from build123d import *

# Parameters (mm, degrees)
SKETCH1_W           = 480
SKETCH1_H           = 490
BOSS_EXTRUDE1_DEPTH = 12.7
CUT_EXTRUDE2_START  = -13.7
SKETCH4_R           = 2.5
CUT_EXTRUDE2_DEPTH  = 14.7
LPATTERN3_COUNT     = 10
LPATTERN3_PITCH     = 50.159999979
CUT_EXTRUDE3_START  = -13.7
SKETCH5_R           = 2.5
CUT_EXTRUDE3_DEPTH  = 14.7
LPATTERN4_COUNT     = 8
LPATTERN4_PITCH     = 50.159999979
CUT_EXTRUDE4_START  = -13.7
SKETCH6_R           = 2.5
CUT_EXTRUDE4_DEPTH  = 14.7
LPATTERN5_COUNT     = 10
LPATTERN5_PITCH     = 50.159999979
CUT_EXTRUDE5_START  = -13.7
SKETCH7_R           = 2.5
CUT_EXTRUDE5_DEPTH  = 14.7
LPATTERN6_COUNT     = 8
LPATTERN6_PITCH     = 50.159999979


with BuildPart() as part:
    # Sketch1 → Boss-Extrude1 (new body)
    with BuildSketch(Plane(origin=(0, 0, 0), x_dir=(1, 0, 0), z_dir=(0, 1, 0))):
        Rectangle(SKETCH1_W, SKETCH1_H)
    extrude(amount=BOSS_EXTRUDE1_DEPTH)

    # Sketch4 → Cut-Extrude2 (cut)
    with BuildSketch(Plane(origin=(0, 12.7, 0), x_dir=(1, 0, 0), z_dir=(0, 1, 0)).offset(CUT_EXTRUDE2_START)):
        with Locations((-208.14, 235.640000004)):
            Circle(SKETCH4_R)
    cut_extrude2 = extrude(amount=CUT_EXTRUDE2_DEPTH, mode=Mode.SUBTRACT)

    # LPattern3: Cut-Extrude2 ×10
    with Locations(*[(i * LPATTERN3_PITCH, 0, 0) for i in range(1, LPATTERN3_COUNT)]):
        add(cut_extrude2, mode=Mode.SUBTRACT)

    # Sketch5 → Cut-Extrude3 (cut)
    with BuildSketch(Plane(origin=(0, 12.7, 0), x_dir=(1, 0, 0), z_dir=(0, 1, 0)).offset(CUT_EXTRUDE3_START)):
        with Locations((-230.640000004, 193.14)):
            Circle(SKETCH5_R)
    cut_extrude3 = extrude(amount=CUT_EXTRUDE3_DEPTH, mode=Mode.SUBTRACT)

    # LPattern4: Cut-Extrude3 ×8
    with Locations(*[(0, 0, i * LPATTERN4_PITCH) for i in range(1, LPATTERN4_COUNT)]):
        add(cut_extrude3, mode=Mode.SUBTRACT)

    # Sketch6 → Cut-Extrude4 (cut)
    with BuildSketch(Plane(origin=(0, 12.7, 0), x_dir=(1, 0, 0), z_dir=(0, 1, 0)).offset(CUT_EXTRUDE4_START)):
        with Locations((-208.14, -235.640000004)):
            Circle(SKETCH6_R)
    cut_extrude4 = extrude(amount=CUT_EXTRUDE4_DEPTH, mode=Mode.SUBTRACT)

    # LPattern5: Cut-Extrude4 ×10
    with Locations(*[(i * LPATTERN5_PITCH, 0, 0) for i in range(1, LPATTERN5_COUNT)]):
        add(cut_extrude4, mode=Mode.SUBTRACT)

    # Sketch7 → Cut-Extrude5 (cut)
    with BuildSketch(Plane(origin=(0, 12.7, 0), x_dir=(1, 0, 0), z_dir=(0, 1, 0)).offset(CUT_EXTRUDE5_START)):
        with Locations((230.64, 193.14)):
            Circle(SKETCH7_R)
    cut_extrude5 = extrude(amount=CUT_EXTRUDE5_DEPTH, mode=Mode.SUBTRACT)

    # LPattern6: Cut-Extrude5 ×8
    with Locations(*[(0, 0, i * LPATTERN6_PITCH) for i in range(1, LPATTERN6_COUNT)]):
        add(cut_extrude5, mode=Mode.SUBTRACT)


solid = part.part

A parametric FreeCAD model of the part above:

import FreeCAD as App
import Part
import Sketcher
Q = App.Units.Quantity


def add_polygon(sketch, points):
    """Adds a closed chain of lines whose ends are joined by coincident constraints."""
    first, n = sketch.GeometryCount, len(points)
    for a, b in zip(points, points[1:] + points[:1]):
        sketch.addGeometry(Part.LineSegment(App.Vector(*a, 0), App.Vector(*b, 0)), False)
    for i in range(n):
        sketch.addConstraint(Sketcher.Constraint("Coincident", first + i, 2, first + (i + 1) % n, 1))

doc = App.newDocument("Part")
body = doc.addObject("PartDesign::Body", "Body")

# Sketch on XZ plane
sketch1 = body.newObject("Sketcher::SketchObject", "Sketch")
sketch1.AttachmentSupport = (doc.getObject("XZ_Plane"), [""])
sketch1.MapMode = "FlatFace"
add_polygon(sketch1, [(-240, -245), (-240, 245), (240, 245), (240, -245)])  # lines 0-3
sketch1.addConstraint([
    Sketcher.Constraint("Vertical", 0),
    Sketcher.Constraint("Horizontal", 1),
    Sketcher.Constraint("Vertical", 2),
    Sketcher.Constraint("Horizontal", 3),
    Sketcher.Constraint("Symmetric", 0, 2, 2, 2, -1, 1),
    Sketcher.Constraint("DistanceX", 1, 1, 1, 2, Q("480 mm")),
    Sketcher.Constraint("DistanceY", 0, 1, 0, 2, Q("490 mm")),
])
pad1 = body.newObject("PartDesign::Pad", "Pad")
pad1.Profile = sketch1
pad1.Length = 12.7
pad1.Reversed = True

# Sketch on XZ plane
sketch2 = body.newObject("Sketcher::SketchObject", "Sketch001")
sketch2.AttachmentSupport = (doc.getObject("XZ_Plane"), [""])
sketch2.MapMode = "FlatFace"
sketch2.AttachmentOffset = App.Placement(App.Vector(0, 0, 1), App.Rotation())
sketch2.addGeometry(Part.Circle(App.Vector(-208.1, -235.6, 0), App.Vector(0, 0, 1), 2.5), False)
sketch2.addConstraint([
    Sketcher.Constraint("Diameter", 0, Q("5 mm")),
    Sketcher.Constraint("DistanceX", 0, 3, -1, 1, Q("208.14 mm")),
    Sketcher.Constraint("DistanceY", 0, 3, -1, 1, Q("235.64 mm")),
])
pocket1 = body.newObject("PartDesign::Pocket", "Pocket")
pocket1.Profile = sketch2
pocket1.Length = 14.7
doc.recompute()

linearpattern = body.newObject("PartDesign::LinearPattern", "LinearPattern")
linearpattern.Originals = [pocket1]
linearpattern.Direction = (doc.getObject("X_Axis"), [""])
linearpattern.Mode = "offset"
linearpattern.Offset = 50.16
linearpattern.Occurrences = 10
body.Tip = linearpattern

# Sketch on XZ plane
sketch3 = body.newObject("Sketcher::SketchObject", "Sketch002")
sketch3.AttachmentSupport = (doc.getObject("XZ_Plane"), [""])
sketch3.MapMode = "FlatFace"
sketch3.AttachmentOffset = App.Placement(App.Vector(0, 0, 1), App.Rotation())
sketch3.addGeometry(Part.Circle(App.Vector(-230.6, -193.1, 0), App.Vector(0, 0, 1), 2.5), False)
sketch3.addConstraint([
    Sketcher.Constraint("Diameter", 0, Q("5 mm")),
    Sketcher.Constraint("DistanceX", 0, 3, -1, 1, Q("230.64 mm")),
    Sketcher.Constraint("DistanceY", 0, 3, -1, 1, Q("193.14 mm")),
])
pocket2 = body.newObject("PartDesign::Pocket", "Pocket001")
pocket2.Profile = sketch3
pocket2.Length = 14.7
doc.recompute()

linearpattern2 = body.newObject("PartDesign::LinearPattern", "LinearPattern001")
linearpattern2.Originals = [pocket2]
linearpattern2.Direction = (doc.getObject("Z_Axis"), [""])
linearpattern2.Mode = "offset"
linearpattern2.Offset = 50.16
linearpattern2.Occurrences = 8
body.Tip = linearpattern2

# Sketch on XZ plane
sketch4 = body.newObject("Sketcher::SketchObject", "Sketch003")
sketch4.AttachmentSupport = (doc.getObject("XZ_Plane"), [""])
sketch4.MapMode = "FlatFace"
sketch4.AttachmentOffset = App.Placement(App.Vector(0, 0, 1), App.Rotation())
sketch4.addGeometry(Part.Circle(App.Vector(-208.1, 235.6, 0), App.Vector(0, 0, 1), 2.5), False)
sketch4.addConstraint([
    Sketcher.Constraint("Diameter", 0, Q("5 mm")),
    Sketcher.Constraint("DistanceX", 0, 3, -1, 1, Q("208.14 mm")),
    Sketcher.Constraint("DistanceY", -1, 1, 0, 3, Q("235.64 mm")),
])
pocket3 = body.newObject("PartDesign::Pocket", "Pocket002")
pocket3.Profile = sketch4
pocket3.Length = 14.7
doc.recompute()

linearpattern3 = body.newObject("PartDesign::LinearPattern", "LinearPattern002")
linearpattern3.Originals = [pocket3]
linearpattern3.Direction = (doc.getObject("X_Axis"), [""])
linearpattern3.Mode = "offset"
linearpattern3.Offset = 50.16
linearpattern3.Occurrences = 10
body.Tip = linearpattern3

# Sketch on XZ plane
sketch5 = body.newObject("Sketcher::SketchObject", "Sketch004")
sketch5.AttachmentSupport = (doc.getObject("XZ_Plane"), [""])
sketch5.MapMode = "FlatFace"
sketch5.AttachmentOffset = App.Placement(App.Vector(0, 0, 1), App.Rotation())
sketch5.addGeometry(Part.Circle(App.Vector(230.6, -193.1, 0), App.Vector(0, 0, 1), 2.5), False)
sketch5.addConstraint([
    Sketcher.Constraint("Diameter", 0, Q("5 mm")),
    Sketcher.Constraint("DistanceX", -1, 1, 0, 3, Q("230.64 mm")),
    Sketcher.Constraint("DistanceY", 0, 3, -1, 1, Q("193.14 mm")),
])
pocket4 = body.newObject("PartDesign::Pocket", "Pocket003")
pocket4.Profile = sketch5
pocket4.Length = 14.7
doc.recompute()

linearpattern4 = body.newObject("PartDesign::LinearPattern", "LinearPattern003")
linearpattern4.Originals = [pocket4]
linearpattern4.Direction = (doc.getObject("Z_Axis"), [""])
linearpattern4.Mode = "offset"
linearpattern4.Offset = 50.16
linearpattern4.Occurrences = 8
body.Tip = linearpattern4

doc.recompute()
